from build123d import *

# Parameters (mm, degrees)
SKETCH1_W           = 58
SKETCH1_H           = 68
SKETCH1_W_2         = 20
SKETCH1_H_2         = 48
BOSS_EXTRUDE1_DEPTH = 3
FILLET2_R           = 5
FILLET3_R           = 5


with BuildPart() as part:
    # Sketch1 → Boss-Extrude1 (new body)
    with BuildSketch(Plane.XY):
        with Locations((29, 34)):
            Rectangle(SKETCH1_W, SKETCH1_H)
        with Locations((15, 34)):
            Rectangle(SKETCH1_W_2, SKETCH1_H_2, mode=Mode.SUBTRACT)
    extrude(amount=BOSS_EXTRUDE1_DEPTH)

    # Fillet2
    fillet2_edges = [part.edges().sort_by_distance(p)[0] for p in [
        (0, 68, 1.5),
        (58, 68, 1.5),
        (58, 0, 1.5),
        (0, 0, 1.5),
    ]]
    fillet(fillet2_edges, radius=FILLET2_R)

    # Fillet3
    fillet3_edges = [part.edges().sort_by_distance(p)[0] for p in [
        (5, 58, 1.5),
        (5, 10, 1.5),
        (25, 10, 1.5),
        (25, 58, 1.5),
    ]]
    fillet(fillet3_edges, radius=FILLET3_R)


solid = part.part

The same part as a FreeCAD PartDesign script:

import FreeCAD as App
import Part
import Sketcher

V = App.Vector
Q = App.Units.Quantity


def edges_at(feature, points):
    """Names of the edges that pass closest to the given points."""
    edges = feature.Shape.Edges
    near = lambda p: min(range(len(edges)), key=lambda i: edges[i].distToShape(Part.Vertex(*p))[0])
    return sorted({f"Edge{near(p) + 1}" for p in points})


def add_polygon(sketch, points):
    """Adds a closed chain of lines whose ends are joined by coincident constraints."""
    first, n = sketch.GeometryCount, len(points)
    for a, b in zip(points, points[1:] + points[:1]):
        sketch.addGeometry(Part.LineSegment(App.Vector(*a, 0), App.Vector(*b, 0)), False)
    for i in range(n):
        sketch.addConstraint(Sketcher.Constraint("Coincident", first + i, 2, first + (i + 1) % n, 1))

doc = App.newDocument("Part")
params = doc.addObject("Spreadsheet::Sheet", "Params")
for row, (alias, value) in enumerate([
    ("sketch1_width", "58 mm"),
    ("sketch1_width2", "20 mm"),
    ("sketch1_height", "68 mm"),
    ("sketch1_height2", "48 mm"),
    ("pad1_length", "3 mm"),
    ("fillet_radius", "5 mm"),
    ("fillet2_radius", "5 mm"),
], start=1):
    params.set(f"A{row}", alias)
    params.set(f"B{row}", "=" + value)
    params.setAlias(f"B{row}", alias)

body = doc.addObject("PartDesign::Body", "Body")

sketch1 = body.newObject("Sketcher::SketchObject", "Sketch")
sketch1.AttachmentSupport = (doc.getObject("XY_Plane"), [""])
sketch1.MapMode = "FlatFace"
add_polygon(sketch1, [(0, 68), (0, 0), (58, 0), (58, 68)])
add_polygon(sketch1, [(25, 10), (5, 10), (5, 58), (25, 58)])
sketch1.addConstraint([
    Sketcher.Constraint("Vertical", 0),
    Sketcher.Constraint("Horizontal", 1),
    Sketcher.Constraint("Vertical", 2),
    Sketcher.Constraint("Horizontal", 3),
    Sketcher.Constraint("Horizontal", 4),
    Sketcher.Constraint("Vertical", 5),
    Sketcher.Constraint("Horizontal", 6),
    Sketcher.Constraint("Vertical", 7),
    Sketcher.Constraint("Coincident", 0, 2, -1, 1),
    Sketcher.Constraint("DistanceX", 1, 1, 1, 2, Q("58 mm")),
    Sketcher.Constraint("DistanceX", 4, 2, 4, 1, Q("20 mm")),
    Sketcher.Constraint("DistanceY", 0, 2, 0, 1, Q("68 mm")),
    Sketcher.Constraint("DistanceY", 5, 1, 5, 2, Q("48 mm")),
    Sketcher.Constraint("DistanceX", -1, 1, 4, 2, Q("5 mm")),
    Sketcher.Constraint("DistanceY", -1, 1, 4, 2, Q("10 mm")),
])
sketch1.setExpression("Constraints[17]", "Params.sketch1_width")
sketch1.setExpression("Constraints[18]", "Params.sketch1_width2")
sketch1.setExpression("Constraints[19]", "Params.sketch1_height")
sketch1.setExpression("Constraints[20]", "Params.sketch1_height2")
pad1 = body.newObject("PartDesign::Pad", "Pad")
pad1.Profile = sketch1
pad1.setExpression("Length", "Params.pad1_length")
doc.recompute()

fillet = body.newObject("PartDesign::Fillet", "Fillet")
fillet.Base = (pad1, edges_at(pad1, [
    (0, 68, 1.5),
    (58, 68, 1.5),
    (58, 0, 1.5),
    (0, 0, 1.5),
]))
fillet.setExpression("Radius", "Params.fillet_radius")
doc.recompute()

fillet2 = body.newObject("PartDesign::Fillet", "Fillet001")
fillet2.Base = (fillet, edges_at(fillet, [
    (5, 58, 1.5),
    (5, 10, 1.5),
    (25, 10, 1.5),
    (25, 58, 1.5),
]))
fillet2.setExpression("Radius", "Params.fillet2_radius")

doc.recompute()
